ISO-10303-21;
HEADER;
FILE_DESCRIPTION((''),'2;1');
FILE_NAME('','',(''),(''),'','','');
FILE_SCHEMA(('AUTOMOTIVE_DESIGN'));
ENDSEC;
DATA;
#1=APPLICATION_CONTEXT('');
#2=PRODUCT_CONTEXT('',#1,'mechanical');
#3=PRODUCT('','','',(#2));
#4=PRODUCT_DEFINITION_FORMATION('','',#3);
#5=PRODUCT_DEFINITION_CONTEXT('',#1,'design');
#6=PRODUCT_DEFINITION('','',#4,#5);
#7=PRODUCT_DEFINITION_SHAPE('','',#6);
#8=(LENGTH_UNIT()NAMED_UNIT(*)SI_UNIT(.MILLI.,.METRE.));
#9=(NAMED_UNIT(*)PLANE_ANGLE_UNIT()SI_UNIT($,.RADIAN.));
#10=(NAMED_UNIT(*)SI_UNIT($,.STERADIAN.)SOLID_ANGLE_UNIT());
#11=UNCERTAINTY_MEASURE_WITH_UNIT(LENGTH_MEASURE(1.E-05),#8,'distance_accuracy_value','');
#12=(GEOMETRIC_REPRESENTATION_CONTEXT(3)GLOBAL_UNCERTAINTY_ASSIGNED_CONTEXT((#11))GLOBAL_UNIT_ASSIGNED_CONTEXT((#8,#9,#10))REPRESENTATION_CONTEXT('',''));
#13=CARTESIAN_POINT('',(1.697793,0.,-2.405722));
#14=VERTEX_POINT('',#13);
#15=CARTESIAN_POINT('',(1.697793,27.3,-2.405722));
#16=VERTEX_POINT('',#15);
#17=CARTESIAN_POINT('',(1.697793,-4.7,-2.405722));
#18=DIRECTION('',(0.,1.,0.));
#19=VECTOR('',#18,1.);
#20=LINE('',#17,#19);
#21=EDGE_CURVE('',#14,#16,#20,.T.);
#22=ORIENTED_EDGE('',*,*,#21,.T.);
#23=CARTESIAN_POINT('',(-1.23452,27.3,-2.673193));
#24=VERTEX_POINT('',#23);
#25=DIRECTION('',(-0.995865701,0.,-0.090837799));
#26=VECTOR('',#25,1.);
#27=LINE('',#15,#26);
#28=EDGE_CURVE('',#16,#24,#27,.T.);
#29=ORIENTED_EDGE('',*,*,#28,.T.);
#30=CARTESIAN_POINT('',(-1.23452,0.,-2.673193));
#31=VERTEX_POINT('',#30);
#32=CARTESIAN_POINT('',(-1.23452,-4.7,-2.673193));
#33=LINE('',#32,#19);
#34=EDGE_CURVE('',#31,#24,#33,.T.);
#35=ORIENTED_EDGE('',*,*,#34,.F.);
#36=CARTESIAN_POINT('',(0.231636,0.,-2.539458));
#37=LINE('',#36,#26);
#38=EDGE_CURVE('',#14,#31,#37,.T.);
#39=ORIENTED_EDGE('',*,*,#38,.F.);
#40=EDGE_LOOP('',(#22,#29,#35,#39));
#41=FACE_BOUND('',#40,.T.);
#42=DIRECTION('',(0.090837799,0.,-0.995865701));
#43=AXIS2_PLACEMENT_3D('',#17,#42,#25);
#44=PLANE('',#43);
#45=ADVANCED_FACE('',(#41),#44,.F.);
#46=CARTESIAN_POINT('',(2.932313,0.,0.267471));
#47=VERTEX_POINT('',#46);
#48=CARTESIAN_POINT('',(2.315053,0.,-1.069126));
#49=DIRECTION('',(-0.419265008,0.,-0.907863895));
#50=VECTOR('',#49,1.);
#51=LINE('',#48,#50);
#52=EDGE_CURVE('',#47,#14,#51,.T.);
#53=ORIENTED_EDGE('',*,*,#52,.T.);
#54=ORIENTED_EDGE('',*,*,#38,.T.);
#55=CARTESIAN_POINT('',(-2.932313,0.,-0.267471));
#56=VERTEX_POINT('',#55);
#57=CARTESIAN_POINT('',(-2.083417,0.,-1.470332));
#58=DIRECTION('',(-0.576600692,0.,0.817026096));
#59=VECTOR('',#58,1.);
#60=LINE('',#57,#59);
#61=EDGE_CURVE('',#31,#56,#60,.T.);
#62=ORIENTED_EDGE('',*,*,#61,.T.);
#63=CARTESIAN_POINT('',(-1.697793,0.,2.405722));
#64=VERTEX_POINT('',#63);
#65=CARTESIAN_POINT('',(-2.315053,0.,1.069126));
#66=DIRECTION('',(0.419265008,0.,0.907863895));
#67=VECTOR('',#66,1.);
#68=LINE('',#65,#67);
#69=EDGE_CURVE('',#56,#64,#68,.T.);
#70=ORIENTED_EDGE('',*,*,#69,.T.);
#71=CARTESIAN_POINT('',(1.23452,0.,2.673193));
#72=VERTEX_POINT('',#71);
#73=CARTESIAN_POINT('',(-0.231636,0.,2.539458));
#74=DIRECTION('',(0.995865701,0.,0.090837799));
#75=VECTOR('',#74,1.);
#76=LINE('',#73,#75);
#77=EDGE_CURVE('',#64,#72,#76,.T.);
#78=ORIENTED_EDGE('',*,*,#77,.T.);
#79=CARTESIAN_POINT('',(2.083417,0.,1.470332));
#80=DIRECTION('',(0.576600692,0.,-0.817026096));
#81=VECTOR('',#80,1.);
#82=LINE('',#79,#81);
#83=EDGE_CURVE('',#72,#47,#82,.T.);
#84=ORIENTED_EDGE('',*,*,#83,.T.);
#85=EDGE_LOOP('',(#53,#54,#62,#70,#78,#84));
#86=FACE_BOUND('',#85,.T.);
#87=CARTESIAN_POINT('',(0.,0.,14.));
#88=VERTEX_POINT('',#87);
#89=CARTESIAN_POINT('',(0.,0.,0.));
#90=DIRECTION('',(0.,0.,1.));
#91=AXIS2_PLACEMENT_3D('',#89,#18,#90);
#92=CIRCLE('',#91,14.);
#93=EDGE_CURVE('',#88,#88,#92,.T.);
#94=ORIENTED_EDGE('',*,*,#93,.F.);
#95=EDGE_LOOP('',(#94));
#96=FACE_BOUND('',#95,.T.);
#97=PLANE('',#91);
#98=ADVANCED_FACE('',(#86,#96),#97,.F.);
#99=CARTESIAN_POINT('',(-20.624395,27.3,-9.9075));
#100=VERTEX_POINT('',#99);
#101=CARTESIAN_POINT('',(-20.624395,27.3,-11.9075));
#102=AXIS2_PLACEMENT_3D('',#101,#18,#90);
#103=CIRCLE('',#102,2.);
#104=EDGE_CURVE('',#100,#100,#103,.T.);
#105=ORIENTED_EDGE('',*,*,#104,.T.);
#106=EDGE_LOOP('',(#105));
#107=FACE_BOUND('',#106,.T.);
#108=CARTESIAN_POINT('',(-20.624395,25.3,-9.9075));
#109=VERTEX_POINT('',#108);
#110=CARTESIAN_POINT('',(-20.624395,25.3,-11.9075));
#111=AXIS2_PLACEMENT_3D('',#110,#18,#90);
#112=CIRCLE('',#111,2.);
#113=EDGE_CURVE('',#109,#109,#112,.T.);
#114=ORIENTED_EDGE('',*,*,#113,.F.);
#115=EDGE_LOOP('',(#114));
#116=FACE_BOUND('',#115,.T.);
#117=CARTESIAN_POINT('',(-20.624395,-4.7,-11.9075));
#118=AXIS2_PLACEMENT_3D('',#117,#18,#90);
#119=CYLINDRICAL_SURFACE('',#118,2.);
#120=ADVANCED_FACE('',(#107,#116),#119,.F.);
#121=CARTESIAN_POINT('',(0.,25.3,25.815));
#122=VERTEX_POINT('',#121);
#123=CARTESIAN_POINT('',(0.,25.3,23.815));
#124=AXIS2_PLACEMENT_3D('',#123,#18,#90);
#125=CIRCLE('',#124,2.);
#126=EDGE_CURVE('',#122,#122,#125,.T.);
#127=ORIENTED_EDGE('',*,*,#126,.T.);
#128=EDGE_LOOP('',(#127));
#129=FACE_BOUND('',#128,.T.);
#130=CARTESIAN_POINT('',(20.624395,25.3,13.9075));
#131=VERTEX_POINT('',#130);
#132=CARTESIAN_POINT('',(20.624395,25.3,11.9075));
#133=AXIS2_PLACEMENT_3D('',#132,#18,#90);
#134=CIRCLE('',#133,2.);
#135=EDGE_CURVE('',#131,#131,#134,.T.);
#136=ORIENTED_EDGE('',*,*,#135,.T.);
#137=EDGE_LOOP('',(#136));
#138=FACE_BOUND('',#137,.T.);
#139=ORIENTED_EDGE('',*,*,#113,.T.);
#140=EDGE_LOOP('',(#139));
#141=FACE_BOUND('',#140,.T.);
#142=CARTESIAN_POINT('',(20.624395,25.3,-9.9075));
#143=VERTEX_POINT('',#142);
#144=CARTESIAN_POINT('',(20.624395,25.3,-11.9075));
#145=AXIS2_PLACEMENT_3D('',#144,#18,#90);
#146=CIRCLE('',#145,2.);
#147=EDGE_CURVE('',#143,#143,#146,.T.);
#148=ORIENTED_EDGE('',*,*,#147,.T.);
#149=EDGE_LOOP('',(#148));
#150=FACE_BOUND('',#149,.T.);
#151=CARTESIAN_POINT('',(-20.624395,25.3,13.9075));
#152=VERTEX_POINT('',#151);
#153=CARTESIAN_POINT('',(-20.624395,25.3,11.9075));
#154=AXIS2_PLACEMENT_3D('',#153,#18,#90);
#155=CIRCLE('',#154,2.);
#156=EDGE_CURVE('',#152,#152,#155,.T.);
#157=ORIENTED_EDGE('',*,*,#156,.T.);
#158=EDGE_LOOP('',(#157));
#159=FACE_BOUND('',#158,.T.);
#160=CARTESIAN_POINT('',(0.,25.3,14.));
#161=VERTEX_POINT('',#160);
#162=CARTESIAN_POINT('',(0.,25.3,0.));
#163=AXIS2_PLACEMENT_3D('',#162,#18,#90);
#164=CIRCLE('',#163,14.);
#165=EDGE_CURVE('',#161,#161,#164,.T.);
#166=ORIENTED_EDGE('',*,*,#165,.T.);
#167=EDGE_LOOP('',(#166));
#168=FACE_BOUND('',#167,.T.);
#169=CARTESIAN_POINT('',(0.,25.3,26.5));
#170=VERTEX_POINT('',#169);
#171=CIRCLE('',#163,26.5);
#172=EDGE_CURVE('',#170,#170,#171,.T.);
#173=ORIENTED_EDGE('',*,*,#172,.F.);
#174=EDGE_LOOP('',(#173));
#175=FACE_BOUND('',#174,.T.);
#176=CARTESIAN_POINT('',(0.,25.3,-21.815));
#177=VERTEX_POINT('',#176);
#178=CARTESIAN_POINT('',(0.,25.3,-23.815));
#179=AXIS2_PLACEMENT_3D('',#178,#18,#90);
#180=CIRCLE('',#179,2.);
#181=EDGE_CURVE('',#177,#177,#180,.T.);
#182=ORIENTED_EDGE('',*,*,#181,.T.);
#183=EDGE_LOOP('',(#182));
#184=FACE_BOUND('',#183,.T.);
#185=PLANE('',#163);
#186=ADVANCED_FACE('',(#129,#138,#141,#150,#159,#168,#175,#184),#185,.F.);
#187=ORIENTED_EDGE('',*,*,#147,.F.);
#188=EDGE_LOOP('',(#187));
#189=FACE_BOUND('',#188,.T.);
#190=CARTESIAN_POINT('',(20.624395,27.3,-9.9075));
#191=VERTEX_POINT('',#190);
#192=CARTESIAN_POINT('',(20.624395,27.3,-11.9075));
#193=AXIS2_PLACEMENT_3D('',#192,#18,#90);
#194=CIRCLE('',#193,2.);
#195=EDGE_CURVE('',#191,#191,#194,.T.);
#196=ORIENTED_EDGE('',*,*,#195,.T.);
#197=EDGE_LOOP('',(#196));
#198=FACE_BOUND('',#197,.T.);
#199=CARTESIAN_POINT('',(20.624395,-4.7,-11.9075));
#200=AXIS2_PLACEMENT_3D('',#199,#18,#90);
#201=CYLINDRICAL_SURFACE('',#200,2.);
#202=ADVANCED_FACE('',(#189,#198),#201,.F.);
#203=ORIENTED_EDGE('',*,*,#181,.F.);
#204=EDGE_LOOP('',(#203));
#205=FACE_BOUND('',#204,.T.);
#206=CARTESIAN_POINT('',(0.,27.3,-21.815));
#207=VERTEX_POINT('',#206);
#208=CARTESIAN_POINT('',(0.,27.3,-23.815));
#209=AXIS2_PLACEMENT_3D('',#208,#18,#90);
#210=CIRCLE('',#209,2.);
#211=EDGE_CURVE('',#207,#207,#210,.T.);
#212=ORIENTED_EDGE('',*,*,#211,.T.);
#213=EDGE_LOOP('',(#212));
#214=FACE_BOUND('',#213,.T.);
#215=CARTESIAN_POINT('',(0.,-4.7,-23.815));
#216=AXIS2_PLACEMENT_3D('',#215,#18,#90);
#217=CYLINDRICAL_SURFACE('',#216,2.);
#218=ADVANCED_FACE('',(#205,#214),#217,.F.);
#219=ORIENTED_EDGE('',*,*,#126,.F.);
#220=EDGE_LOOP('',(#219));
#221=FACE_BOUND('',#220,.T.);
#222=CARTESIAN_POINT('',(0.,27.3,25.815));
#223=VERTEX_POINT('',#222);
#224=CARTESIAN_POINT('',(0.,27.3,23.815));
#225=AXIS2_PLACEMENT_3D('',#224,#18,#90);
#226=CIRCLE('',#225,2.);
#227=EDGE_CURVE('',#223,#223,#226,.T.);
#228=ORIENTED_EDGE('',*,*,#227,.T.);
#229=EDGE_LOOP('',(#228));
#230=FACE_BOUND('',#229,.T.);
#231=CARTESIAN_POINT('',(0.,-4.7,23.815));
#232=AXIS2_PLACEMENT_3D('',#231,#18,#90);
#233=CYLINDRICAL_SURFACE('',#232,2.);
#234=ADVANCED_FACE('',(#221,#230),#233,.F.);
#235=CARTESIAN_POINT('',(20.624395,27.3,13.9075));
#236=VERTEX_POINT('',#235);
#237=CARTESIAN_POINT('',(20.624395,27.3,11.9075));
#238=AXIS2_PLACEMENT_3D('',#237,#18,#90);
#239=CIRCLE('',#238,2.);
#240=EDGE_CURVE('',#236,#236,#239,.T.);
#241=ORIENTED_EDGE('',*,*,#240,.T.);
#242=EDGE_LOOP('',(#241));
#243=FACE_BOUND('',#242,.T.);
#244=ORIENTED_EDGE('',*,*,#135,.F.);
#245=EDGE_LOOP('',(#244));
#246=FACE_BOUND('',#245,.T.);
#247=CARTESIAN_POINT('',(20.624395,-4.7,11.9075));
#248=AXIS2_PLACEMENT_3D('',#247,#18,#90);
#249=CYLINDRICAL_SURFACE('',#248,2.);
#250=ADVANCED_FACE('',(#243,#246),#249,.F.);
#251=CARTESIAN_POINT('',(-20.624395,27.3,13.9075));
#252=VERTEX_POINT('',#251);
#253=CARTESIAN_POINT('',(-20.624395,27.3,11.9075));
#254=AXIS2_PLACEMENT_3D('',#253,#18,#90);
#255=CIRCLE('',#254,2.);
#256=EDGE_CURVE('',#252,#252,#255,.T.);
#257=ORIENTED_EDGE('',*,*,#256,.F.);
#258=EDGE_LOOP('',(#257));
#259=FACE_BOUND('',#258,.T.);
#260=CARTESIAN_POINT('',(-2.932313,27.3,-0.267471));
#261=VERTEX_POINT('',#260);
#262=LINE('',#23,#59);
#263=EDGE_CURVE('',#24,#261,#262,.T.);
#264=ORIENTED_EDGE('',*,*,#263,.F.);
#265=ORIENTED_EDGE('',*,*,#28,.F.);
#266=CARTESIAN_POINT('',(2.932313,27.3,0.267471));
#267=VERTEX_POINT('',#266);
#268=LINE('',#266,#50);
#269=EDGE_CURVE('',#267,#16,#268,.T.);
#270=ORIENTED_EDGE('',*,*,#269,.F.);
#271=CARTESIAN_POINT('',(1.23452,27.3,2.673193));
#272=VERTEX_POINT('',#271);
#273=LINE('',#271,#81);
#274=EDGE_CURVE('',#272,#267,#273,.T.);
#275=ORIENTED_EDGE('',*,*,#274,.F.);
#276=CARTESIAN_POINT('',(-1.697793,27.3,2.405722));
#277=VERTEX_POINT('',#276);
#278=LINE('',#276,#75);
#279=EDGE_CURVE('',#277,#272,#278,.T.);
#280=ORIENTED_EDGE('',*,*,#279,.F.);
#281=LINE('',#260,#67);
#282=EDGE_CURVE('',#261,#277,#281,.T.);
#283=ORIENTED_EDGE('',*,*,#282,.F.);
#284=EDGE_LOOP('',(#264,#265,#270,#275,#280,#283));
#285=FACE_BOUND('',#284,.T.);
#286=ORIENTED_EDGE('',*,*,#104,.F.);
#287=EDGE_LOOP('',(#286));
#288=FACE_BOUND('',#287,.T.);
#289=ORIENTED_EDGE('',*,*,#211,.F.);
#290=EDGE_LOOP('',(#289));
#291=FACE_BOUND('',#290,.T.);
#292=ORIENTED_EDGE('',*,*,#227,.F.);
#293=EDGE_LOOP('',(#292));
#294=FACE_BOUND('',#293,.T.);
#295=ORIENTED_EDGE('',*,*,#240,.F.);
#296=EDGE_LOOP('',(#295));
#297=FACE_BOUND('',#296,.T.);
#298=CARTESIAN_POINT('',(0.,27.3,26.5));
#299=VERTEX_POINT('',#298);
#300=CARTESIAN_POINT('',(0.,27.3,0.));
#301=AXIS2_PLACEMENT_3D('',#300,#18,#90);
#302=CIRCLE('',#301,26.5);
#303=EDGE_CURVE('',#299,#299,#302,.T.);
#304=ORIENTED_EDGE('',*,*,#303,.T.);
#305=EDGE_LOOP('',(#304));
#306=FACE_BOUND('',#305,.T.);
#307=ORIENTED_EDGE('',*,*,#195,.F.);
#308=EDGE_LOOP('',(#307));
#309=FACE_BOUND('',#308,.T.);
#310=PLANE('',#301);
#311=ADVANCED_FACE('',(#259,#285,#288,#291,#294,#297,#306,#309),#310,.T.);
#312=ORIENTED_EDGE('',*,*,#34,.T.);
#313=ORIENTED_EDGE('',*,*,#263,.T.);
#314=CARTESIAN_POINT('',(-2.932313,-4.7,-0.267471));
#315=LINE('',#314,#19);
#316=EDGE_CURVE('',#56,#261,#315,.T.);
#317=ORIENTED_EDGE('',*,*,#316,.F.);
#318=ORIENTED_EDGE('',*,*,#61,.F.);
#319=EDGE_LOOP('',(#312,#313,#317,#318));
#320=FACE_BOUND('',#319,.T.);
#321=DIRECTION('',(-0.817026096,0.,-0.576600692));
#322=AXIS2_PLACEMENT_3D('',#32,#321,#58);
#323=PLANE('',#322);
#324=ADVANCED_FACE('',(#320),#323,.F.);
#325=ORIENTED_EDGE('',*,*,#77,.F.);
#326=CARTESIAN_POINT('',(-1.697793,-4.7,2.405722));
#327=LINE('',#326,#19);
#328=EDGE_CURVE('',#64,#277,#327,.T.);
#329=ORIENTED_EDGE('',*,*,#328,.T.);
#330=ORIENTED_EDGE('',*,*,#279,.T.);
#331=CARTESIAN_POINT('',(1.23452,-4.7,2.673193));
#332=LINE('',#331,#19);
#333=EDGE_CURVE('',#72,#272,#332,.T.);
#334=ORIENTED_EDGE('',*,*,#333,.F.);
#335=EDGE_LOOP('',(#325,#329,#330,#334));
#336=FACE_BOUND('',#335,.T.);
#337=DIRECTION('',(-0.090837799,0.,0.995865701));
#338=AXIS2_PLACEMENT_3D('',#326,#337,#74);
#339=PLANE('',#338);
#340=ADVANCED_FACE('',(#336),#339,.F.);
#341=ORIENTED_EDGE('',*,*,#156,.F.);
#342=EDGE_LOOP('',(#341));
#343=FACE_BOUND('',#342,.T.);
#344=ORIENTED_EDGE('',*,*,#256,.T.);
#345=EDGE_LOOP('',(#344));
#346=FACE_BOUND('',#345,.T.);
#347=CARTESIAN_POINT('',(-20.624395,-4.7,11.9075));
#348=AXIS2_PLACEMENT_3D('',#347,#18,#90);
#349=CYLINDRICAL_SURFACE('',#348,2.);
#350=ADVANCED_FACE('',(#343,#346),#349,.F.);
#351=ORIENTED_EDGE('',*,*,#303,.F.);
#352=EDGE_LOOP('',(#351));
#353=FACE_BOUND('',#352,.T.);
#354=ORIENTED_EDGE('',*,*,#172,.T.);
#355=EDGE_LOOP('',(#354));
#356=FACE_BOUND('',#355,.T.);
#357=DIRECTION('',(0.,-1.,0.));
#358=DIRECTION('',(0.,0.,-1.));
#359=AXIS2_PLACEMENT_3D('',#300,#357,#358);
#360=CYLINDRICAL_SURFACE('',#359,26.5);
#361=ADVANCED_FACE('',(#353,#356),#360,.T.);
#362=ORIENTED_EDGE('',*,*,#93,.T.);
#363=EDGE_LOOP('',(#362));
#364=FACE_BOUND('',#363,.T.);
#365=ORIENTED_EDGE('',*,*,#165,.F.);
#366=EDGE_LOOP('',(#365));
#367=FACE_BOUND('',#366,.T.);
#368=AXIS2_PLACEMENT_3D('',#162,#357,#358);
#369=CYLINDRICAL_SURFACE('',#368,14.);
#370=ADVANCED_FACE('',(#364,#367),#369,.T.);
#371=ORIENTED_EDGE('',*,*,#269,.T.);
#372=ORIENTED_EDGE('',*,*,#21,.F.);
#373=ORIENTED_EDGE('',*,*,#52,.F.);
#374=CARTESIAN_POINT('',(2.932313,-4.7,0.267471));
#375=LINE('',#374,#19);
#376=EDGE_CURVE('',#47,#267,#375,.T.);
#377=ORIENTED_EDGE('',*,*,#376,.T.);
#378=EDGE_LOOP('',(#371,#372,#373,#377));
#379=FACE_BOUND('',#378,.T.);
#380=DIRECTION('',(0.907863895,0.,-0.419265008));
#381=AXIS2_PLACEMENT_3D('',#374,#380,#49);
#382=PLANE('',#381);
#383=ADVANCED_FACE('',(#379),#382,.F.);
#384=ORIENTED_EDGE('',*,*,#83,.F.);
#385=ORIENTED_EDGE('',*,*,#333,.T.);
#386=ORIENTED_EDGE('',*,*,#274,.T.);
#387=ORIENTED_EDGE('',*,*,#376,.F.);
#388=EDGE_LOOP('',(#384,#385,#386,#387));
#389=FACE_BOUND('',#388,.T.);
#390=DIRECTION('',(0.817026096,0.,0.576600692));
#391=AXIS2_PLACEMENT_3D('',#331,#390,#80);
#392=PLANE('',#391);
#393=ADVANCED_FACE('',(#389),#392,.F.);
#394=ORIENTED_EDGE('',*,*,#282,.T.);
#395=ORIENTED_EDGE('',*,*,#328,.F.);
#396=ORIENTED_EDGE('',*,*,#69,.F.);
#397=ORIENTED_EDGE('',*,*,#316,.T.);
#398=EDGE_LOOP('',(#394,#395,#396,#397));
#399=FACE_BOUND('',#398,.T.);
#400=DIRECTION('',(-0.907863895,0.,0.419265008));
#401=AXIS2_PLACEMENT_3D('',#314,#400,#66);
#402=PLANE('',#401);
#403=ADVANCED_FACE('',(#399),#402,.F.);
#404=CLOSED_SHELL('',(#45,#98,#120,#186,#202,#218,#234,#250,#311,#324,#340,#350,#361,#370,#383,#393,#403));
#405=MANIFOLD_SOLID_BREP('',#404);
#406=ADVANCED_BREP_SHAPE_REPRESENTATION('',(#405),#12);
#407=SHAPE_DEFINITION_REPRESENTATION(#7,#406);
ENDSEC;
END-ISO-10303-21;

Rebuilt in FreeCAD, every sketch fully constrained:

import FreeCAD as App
import Part
import Sketcher

doc = App.newDocument("Part")
body = doc.addObject("PartDesign::Body", "Body")

# Sketch on XZ plane
sketch1 = doc.addObject("Sketcher::SketchObject", "Sketch")
body.addObject(sketch1)
sketch1.AttachmentSupport = (doc.XZ_Plane, [""])
sketch1.MapMode = "FlatFace"
sketch1.addGeometry(Part.Circle(App.Vector(0, 0, 0), App.Vector(0, 0, 1), 14), False)
sketch1.addConstraint([
    Sketcher.Constraint("Coincident", 0, 3, -1, 1),
    Sketcher.Constraint("Diameter", 0, 28.0),
])
pad1 = doc.addObject("PartDesign::Pad", "Pad")
body.addObject(pad1)
pad1.Profile = sketch1
pad1.Length = 25.3
pad1.Reversed = True

# Sketch on XZ plane
sketch2 = doc.addObject("Sketcher::SketchObject", "Sketch001")
body.addObject(sketch2)
sketch2.AttachmentSupport = (doc.XZ_Plane, [""])
sketch2.MapMode = "FlatFace"
sketch2.AttachmentOffset = App.Placement(App.Vector(0, 0, -25.3), App.Rotation())
sketch2.addGeometry(Part.Circle(App.Vector(0, 0, 0), App.Vector(0, 0, 1), 26), False)
sketch2.addConstraint([
    Sketcher.Constraint("Coincident", 0, 3, -1, 1),
    Sketcher.Constraint("Diameter", 0, 53.0),
])
pad2 = doc.addObject("PartDesign::Pad", "Pad001")
body.addObject(pad2)
pad2.Profile = sketch2
pad2.Length = 2
pad2.Reversed = True

# Sketch on XZ plane
sketch3 = doc.addObject("Sketcher::SketchObject", "Sketch002")
body.addObject(sketch3)
sketch3.AttachmentSupport = (doc.XZ_Plane, [""])
sketch3.MapMode = "FlatFace"
sketch3.AttachmentOffset = App.Placement(App.Vector(0, 0, -27.3), App.Rotation())
sketch3.addGeometry([
    Part.Circle(App.Vector(0, -23.8, 0), App.Vector(0, 0, 1), 2),  # 0
    Part.Circle(App.Vector(20.6, -11.9, 0), App.Vector(0, 0, 1), 2),  # 1
    Part.Circle(App.Vector(20.6, 11.9, 0), App.Vector(0, 0, 1), 2),  # 2
    Part.Circle(App.Vector(0, 23.8, 0), App.Vector(0, 0, 1), 2),  # 3
    Part.Circle(App.Vector(-20.6, 11.9, 0), App.Vector(0, 0, 1), 2),  # 4
    Part.Circle(App.Vector(-20.6, -11.9, 0), App.Vector(0, 0, 1), 2),  # 5
    Part.LineSegment(App.Vector(1.2, 2.7, 0), App.Vector(2.9, 0.3, 0)),  # 6
    Part.LineSegment(App.Vector(2.9, 0.3, 0), App.Vector(1.7, -2.4, 0)),  # 7
    Part.LineSegment(App.Vector(1.7, -2.4, 0), App.Vector(-1.2, -2.7, 0)),  # 8
    Part.LineSegment(App.Vector(-1.2, -2.7, 0), App.Vector(-2.9, -0.3, 0)),  # 9
    Part.LineSegment(App.Vector(-2.9, -0.3, 0), App.Vector(-1.7, 2.4, 0)),  # 10
    Part.LineSegment(App.Vector(-1.7, 2.4, 0), App.Vector(1.2, 2.7, 0)),  # 11
], False)
sketch3.addConstraint([
    Sketcher.Constraint("Coincident", 6, 2, 7, 1),
    Sketcher.Constraint("Coincident", 7, 2, 8, 1),
    Sketcher.Constraint("Coincident", 8, 2, 9, 1),
    Sketcher.Constraint("Coincident", 9, 2, 10, 1),
    Sketcher.Constraint("Coincident", 10, 2, 11, 1),
    Sketcher.Constraint("Coincident", 11, 2, 6, 1),
    Sketcher.Constraint("Equal", 0, 1),
    Sketcher.Constraint("Equal", 1, 2),
    Sketcher.Constraint("Equal", 2, 3),
    Sketcher.Constraint("Equal", 3, 4),
    Sketcher.Constraint("Equal", 4, 5),
    Sketcher.Constraint("Symmetric", 0, 3, 3, 3, -1, 1),
    Sketcher.Constraint("Symmetric", 1, 3, 4, 3, -1, 1),
    Sketcher.Constraint("Symmetric", 2, 3, 5, 3, -1, 1),
    Sketcher.Constraint("Symmetric", 6, 2, 9, 2, -1, 1),
    Sketcher.Constraint("Symmetric", 7, 2, 10, 2, -1, 1),
    Sketcher.Constraint("Symmetric", 8, 2, 11, 2, -1, 1),
    Sketcher.Constraint("Symmetric", 2, 3, 4, 3, -2),
    Sketcher.Constraint("PointOnObject", 0, 3, -2),
    Sketcher.Constraint("Equal", 6, 7),
    Sketcher.Constraint("Equal", 7, 8),
    Sketcher.Constraint("Diameter", 0, 4.0),
    Sketcher.Constraint("DistanceY", 0, 3, 3, 3, 47.63),
    Sketcher.Constraint("DistanceY", 1, 3, 2, 3, 23.815),
    Sketcher.Constraint("DistanceY", -1, 1, 6, 2, 0.267471),
    Sketcher.Constraint("DistanceX", 8, 2, -1, 1, 1.23452),
    Sketcher.Constraint("DistanceX", 4, 3, 2, 3, 41.24879),
    Sketcher.Constraint("DistanceX", 7, 2, 6, 2, 1.23452),
    Sketcher.Constraint("DistanceY", 8, 2, 7, 2, 0.267471),
])
pocket1 = doc.addObject("PartDesign::Pocket", "Pocket")
body.addObject(pocket1)
pocket1.Profile = sketch3
pocket1.Length = 32
pocket1.Reversed = True

doc.recompute()
